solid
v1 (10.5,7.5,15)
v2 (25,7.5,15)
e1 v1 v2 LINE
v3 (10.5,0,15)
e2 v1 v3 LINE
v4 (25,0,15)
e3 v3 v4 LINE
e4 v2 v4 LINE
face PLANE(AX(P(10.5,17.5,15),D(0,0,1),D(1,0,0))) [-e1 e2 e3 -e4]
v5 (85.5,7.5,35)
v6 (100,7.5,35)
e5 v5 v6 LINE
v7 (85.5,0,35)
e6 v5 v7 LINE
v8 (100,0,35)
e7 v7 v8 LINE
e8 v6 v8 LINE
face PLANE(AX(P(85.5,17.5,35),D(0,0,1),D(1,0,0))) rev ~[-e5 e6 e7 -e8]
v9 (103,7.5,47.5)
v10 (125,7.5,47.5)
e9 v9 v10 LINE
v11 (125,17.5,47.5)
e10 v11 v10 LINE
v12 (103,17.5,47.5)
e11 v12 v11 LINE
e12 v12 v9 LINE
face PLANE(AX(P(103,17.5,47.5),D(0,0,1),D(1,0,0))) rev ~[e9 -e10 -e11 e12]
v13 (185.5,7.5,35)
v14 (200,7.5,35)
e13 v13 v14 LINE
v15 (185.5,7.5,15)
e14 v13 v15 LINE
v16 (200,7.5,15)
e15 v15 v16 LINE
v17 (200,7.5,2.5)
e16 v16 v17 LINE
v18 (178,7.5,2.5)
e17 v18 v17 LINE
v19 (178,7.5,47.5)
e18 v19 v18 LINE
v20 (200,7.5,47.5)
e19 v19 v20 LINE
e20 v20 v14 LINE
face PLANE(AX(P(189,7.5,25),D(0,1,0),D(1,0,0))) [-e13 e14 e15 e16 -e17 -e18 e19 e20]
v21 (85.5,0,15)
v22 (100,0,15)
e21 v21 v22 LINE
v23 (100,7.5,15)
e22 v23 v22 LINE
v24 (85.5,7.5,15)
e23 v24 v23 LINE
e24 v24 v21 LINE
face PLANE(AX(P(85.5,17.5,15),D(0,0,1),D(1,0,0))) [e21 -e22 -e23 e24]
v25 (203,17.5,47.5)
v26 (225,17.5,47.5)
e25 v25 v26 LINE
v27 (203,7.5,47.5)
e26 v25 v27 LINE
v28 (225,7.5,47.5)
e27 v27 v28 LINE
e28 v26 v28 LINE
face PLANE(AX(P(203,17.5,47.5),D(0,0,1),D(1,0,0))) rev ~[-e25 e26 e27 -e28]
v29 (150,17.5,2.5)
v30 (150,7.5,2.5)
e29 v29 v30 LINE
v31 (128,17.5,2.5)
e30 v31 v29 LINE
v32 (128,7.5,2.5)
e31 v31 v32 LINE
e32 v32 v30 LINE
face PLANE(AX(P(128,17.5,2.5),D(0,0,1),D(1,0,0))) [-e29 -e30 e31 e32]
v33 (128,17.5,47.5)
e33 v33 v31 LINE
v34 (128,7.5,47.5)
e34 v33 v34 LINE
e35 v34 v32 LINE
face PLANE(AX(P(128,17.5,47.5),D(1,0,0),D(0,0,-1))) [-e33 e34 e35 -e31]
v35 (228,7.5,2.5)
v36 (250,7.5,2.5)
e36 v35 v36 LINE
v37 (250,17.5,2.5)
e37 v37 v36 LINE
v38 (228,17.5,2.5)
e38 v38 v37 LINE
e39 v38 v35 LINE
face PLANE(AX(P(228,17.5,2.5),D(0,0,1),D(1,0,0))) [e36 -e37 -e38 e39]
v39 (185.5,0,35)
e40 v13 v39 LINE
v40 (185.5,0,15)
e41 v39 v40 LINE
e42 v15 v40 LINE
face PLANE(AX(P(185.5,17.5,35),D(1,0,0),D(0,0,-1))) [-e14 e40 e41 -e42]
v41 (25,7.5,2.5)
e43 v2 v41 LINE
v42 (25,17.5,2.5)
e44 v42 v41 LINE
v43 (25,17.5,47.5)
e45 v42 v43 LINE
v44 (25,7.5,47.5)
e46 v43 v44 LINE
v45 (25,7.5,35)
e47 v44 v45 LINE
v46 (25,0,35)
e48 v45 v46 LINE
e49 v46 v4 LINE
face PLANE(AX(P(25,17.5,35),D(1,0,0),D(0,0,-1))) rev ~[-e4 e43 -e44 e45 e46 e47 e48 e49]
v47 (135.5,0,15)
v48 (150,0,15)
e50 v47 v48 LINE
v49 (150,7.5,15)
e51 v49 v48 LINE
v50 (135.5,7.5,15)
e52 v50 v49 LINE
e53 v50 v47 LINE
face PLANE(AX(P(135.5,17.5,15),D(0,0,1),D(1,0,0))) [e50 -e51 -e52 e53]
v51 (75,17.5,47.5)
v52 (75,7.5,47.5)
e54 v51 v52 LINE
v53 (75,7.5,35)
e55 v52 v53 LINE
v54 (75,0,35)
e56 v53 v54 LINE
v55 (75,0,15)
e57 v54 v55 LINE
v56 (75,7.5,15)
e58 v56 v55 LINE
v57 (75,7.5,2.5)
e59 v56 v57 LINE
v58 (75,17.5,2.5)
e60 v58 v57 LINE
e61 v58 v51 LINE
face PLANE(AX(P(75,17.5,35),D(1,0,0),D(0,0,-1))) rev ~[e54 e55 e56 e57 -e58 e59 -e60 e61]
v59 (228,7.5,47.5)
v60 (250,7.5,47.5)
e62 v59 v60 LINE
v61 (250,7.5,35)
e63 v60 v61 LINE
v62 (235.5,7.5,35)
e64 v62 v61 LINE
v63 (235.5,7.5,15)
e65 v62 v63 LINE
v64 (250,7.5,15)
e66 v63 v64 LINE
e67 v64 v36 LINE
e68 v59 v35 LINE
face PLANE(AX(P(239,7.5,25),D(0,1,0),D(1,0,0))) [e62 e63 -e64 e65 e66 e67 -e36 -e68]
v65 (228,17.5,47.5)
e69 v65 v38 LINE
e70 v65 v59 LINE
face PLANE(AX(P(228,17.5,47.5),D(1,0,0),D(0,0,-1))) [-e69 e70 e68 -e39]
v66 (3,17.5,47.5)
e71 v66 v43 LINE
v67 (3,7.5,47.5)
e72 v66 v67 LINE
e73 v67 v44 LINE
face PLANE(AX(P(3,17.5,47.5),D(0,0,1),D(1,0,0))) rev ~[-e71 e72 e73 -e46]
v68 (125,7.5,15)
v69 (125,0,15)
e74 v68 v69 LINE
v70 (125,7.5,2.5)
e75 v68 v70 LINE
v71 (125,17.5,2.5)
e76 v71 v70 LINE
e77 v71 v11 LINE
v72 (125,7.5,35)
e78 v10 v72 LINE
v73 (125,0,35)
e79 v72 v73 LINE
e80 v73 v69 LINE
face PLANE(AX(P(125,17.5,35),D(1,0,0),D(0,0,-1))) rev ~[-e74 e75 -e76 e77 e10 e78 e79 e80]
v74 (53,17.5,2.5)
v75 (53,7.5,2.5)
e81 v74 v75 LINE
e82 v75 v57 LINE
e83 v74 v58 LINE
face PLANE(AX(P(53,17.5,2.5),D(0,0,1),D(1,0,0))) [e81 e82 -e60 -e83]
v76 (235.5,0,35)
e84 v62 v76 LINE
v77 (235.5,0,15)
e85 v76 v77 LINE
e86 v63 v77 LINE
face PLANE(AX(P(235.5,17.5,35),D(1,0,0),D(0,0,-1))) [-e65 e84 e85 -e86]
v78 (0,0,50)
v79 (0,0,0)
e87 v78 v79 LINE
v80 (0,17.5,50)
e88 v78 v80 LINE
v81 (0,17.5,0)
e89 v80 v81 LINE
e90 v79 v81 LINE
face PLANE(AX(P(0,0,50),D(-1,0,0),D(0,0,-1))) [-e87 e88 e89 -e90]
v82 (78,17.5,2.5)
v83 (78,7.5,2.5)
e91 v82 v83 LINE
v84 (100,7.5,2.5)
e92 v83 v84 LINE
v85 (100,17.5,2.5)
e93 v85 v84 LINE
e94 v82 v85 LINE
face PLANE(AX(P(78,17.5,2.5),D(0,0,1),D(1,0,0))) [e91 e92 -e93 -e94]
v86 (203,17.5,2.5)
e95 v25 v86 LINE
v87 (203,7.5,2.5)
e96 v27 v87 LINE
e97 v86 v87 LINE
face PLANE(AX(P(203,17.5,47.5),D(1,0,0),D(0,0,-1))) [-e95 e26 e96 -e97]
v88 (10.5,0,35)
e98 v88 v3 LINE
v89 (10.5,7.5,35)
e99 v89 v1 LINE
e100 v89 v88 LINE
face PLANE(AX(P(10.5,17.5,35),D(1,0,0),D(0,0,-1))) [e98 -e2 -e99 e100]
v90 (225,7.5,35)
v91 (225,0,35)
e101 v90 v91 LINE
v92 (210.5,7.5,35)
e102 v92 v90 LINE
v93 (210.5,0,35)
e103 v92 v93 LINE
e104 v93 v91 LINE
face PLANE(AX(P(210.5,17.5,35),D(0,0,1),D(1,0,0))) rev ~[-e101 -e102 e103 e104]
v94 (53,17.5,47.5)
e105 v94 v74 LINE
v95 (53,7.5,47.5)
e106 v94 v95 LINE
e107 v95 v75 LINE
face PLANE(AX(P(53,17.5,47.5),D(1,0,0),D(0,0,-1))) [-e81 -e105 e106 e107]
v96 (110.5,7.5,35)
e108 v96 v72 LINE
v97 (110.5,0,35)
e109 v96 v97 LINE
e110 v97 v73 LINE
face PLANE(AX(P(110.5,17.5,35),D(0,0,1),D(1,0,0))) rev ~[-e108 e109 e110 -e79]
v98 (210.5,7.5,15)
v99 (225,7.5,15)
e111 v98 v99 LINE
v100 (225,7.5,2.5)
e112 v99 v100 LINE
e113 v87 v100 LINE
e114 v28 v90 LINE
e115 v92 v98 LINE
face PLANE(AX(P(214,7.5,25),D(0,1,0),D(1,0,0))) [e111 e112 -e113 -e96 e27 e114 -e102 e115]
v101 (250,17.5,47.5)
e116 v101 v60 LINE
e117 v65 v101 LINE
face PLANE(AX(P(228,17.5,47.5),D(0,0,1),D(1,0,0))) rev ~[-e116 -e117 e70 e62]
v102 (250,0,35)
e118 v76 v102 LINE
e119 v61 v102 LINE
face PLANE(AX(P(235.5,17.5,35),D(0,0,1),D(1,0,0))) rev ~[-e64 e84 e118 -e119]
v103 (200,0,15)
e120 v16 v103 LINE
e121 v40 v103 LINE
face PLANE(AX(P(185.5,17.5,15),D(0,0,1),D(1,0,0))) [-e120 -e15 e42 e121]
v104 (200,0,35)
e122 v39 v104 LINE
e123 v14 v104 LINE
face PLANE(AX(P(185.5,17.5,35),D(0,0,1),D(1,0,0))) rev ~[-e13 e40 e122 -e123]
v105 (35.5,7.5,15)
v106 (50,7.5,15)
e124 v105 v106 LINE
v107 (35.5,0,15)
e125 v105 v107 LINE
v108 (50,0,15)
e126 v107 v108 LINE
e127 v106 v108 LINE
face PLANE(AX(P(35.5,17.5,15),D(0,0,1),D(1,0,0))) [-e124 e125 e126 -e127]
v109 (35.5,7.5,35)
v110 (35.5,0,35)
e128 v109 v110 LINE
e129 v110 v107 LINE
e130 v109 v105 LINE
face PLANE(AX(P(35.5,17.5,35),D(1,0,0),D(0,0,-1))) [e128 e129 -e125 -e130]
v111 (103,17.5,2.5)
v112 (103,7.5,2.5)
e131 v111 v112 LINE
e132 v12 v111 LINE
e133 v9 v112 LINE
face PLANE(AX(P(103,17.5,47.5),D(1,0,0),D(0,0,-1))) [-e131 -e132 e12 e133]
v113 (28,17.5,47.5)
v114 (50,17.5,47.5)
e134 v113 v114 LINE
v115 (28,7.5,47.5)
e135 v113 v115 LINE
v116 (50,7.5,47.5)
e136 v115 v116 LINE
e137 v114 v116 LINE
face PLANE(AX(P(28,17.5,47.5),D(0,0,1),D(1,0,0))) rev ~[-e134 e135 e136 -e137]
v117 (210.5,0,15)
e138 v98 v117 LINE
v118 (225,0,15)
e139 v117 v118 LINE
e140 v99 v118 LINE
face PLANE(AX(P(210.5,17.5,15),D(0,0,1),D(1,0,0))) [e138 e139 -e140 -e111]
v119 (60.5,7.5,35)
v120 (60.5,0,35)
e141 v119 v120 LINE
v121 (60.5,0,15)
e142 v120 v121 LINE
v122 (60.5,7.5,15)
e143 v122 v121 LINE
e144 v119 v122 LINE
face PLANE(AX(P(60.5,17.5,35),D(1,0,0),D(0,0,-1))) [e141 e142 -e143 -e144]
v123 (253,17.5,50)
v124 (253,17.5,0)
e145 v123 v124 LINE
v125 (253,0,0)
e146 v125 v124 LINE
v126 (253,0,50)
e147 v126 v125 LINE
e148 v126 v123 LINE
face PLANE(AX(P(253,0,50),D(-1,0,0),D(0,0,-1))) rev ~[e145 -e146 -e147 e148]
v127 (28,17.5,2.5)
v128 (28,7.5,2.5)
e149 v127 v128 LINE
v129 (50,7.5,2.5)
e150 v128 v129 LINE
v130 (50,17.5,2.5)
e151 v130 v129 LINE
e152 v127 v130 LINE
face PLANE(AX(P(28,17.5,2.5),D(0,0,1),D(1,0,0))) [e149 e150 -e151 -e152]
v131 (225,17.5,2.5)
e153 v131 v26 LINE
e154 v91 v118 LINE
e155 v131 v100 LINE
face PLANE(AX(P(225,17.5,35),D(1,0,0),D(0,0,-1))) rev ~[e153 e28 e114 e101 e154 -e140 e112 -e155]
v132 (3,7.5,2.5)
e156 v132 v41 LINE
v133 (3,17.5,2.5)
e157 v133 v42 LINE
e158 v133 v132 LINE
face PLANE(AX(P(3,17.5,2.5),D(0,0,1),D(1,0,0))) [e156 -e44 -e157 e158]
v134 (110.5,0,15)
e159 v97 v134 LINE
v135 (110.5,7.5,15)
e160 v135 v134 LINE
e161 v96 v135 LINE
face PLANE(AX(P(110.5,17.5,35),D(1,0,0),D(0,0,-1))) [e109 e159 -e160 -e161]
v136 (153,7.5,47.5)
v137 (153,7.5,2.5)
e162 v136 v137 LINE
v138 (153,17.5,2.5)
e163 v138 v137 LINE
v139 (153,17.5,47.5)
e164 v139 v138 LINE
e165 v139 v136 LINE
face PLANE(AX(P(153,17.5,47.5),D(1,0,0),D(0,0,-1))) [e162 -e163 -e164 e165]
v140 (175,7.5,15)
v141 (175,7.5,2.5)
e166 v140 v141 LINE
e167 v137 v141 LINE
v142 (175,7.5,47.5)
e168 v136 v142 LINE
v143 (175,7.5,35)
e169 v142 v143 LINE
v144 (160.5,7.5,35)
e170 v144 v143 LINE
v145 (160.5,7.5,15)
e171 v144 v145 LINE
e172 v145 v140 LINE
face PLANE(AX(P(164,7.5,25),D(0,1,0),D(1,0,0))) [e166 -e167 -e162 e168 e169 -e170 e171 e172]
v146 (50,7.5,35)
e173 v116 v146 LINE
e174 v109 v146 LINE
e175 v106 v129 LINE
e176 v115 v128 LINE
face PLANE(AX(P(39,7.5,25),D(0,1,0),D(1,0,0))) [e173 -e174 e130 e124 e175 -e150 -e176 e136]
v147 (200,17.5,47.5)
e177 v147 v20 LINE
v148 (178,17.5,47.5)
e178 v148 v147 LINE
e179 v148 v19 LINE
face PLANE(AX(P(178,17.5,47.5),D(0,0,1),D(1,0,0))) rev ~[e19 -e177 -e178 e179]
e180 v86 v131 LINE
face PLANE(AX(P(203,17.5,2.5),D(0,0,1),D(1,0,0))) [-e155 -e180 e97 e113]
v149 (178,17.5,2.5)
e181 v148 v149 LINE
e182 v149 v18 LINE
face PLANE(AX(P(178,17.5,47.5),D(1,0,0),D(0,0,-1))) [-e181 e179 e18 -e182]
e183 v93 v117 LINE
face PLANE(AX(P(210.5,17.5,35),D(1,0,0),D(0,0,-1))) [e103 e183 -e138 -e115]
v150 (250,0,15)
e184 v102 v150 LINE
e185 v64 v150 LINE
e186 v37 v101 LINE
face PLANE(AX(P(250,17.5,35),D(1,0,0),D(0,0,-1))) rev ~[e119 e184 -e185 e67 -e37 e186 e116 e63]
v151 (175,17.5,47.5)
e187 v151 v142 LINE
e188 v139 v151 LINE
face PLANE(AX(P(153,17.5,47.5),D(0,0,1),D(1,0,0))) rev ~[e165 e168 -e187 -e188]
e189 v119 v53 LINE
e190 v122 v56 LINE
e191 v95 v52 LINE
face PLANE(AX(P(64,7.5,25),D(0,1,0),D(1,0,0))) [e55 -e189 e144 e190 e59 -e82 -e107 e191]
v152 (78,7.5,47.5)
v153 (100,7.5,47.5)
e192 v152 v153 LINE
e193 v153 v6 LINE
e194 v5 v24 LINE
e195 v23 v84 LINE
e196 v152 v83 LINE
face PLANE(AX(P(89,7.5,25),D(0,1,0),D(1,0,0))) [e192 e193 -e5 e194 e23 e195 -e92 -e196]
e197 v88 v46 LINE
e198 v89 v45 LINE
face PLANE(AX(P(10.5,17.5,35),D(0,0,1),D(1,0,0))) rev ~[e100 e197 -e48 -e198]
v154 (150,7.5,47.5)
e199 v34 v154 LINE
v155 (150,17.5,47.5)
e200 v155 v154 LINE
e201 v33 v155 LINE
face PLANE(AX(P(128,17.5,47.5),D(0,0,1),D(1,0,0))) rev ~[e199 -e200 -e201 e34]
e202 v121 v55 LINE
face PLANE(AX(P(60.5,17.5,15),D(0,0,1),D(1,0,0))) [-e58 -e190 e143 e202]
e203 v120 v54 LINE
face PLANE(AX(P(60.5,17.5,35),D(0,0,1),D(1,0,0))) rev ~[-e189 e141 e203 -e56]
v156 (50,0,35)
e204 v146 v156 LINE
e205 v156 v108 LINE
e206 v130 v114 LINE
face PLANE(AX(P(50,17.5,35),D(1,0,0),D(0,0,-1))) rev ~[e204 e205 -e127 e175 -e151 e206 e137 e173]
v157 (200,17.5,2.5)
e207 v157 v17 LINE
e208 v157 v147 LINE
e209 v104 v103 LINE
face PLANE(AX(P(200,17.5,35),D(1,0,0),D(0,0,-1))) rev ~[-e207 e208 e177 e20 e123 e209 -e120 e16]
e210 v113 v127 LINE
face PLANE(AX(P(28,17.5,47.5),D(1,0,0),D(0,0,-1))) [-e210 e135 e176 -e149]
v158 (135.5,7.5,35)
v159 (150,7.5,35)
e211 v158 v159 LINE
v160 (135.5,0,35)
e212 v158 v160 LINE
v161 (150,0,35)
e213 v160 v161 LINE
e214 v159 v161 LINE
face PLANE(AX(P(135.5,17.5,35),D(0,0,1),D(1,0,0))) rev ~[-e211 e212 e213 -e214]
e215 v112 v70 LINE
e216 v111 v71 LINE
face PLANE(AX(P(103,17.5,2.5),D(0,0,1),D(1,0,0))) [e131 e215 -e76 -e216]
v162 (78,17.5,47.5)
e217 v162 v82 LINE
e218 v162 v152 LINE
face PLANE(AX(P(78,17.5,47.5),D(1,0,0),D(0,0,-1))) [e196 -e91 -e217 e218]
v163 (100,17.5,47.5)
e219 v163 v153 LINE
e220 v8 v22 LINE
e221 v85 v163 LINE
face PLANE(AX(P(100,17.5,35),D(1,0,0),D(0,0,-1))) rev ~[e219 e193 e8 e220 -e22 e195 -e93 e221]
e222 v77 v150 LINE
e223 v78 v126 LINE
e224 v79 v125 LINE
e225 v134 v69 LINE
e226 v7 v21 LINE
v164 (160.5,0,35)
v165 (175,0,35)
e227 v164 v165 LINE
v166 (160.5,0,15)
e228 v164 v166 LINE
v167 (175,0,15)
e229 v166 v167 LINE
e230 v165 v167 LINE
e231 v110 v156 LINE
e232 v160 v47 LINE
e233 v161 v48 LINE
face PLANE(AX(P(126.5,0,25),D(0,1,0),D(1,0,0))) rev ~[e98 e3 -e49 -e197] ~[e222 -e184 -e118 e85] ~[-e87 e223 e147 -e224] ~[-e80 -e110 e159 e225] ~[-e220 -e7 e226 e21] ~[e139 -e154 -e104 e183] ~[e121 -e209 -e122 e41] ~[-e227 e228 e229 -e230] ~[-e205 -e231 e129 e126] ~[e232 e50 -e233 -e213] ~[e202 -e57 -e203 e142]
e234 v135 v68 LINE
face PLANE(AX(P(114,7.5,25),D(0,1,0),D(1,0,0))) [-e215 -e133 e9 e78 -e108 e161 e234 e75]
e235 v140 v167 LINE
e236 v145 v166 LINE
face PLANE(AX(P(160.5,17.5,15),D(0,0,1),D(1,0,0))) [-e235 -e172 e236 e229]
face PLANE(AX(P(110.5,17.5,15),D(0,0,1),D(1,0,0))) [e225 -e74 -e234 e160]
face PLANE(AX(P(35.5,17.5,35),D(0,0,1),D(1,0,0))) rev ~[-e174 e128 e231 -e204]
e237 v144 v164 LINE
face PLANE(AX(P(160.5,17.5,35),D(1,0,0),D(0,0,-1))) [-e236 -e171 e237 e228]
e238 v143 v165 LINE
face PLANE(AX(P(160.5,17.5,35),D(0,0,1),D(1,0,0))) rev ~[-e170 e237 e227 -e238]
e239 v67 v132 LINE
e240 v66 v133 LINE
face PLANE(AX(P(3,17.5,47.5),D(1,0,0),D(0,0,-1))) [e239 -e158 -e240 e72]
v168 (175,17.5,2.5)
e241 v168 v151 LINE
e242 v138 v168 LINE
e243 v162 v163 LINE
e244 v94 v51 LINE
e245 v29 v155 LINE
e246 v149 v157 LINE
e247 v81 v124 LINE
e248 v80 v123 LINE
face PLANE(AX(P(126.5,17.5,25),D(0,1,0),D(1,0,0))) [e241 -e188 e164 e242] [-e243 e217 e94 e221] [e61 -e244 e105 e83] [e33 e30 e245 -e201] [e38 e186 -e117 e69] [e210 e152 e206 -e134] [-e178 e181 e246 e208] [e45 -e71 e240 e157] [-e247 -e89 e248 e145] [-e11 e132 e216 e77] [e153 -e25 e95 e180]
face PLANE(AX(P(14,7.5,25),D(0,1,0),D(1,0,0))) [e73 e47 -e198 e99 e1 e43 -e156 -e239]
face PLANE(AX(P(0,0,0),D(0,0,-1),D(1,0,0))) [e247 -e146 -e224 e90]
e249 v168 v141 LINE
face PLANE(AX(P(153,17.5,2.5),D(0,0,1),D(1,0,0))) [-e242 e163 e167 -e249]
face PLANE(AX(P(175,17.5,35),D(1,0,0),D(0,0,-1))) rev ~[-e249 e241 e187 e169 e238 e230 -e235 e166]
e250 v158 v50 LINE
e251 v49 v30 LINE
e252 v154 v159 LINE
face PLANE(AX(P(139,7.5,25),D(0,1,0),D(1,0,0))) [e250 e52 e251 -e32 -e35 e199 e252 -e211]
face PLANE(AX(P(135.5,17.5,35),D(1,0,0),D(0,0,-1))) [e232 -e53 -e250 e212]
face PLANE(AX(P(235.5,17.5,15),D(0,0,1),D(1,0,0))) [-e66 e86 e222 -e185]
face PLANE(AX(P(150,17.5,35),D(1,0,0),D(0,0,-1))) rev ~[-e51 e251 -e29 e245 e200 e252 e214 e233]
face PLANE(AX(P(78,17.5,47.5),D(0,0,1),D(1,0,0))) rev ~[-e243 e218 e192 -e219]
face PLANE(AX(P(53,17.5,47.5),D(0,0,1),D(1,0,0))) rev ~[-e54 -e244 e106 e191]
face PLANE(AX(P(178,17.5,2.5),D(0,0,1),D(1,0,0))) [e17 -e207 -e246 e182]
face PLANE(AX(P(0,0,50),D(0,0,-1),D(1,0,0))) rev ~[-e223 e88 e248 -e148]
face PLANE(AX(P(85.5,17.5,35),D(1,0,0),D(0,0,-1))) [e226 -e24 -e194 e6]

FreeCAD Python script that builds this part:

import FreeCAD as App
import Part
import Sketcher

V = App.Vector
Q = App.Units.Quantity

doc = App.newDocument("Part")
body = doc.addObject("PartDesign::Body", "Body")

sketch1 = body.newObject("Sketcher::SketchObject", "Sketch")
sketch1.AttachmentSupport = (doc.getObject("XZ_Plane"), [""])
sketch1.MapMode = "FlatFace"
sketch1.addGeometry([
    Part.LineSegment(V(0, 0, 0), V(0, 50, 0)),
    Part.LineSegment(V(0, 50, 0), V(253, 50, 0)),
    Part.LineSegment(V(253, 50, 0), V(253, 0, 0)),
    Part.LineSegment(V(253, 0, 0), V(0, 0, 0)),
], False)
sketch1.addConstraint([
    Sketcher.Constraint("Coincident", 0, 2, 1, 1),
    Sketcher.Constraint("Coincident", 1, 2, 2, 1),
    Sketcher.Constraint("Coincident", 2, 2, 3, 1),
    Sketcher.Constraint("Coincident", 3, 2, 0, 1),
    Sketcher.Constraint("Vertical", 0),
    Sketcher.Constraint("Horizontal", 1),
    Sketcher.Constraint("Vertical", 2),
    Sketcher.Constraint("Horizontal", 3),
    Sketcher.Constraint("Coincident", 3, 2, -1, 1),
    Sketcher.Constraint("DistanceX", 1, 1, 1, 2, Q("253 mm")),
    Sketcher.Constraint("DistanceY", 0, 1, 0, 2, Q("50 mm")),
])
pad1 = body.newObject("PartDesign::Pad", "Pad")
pad1.Profile = sketch1
pad1.Length = 17.5
pad1.Reversed = True

sketch2 = body.newObject("Sketcher::SketchObject", "Sketch001")
sketch2.AttachmentSupport = (doc.getObject("XZ_Plane"), [""])
sketch2.MapMode = "FlatFace"
sketch2.AttachmentOffset = App.Placement(V(0, 0, -17.5), App.Rotation())
sketch2.addGeometry([
    Part.LineSegment(V(3, 2.5, 0), V(3, 47.5, 0)),
    Part.LineSegment(V(3, 47.5, 0), V(25, 47.5, 0)),
    Part.LineSegment(V(25, 47.5, 0), V(25, 2.5, 0)),
    Part.LineSegment(V(25, 2.5, 0), V(3, 2.5, 0)),
], False)
sketch2.addConstraint([
    Sketcher.Constraint("Coincident", 0, 2, 1, 1),
    Sketcher.Constraint("Coincident", 1, 2, 2, 1),
    Sketcher.Constraint("Coincident", 2, 2, 3, 1),
    Sketcher.Constraint("Coincident", 3, 2, 0, 1),
    Sketcher.Constraint("Vertical", 0),
    Sketcher.Constraint("Horizontal", 1),
    Sketcher.Constraint("Vertical", 2),
    Sketcher.Constraint("Horizontal", 3),
    Sketcher.Constraint("DistanceX", 1, 1, 1, 2, Q("22 mm")),
    Sketcher.Constraint("DistanceY", 0, 1, 0, 2, Q("45 mm")),
    Sketcher.Constraint("DistanceX", -1, 1, 0, 2, Q("3 mm")),
    Sketcher.Constraint("DistanceY", -1, 1, 0, 2, Q("47.5 mm")),
])
pocket1 = body.newObject("PartDesign::Pocket", "Pocket")
pocket1.Profile = sketch2
pocket1.Length = 10
pocket1.Reversed = True

sketch3 = body.newObject("Sketcher::SketchObject", "Sketch002")
sketch3.AttachmentSupport = (doc.getObject("XZ_Plane"), [""])
sketch3.MapMode = "FlatFace"
sketch3.AttachmentOffset = App.Placement(V(0, 0, -17.5), App.Rotation())
sketch3.addGeometry([
    Part.LineSegment(V(10.5, 15, 0), V(10.5, 35, 0)),
    Part.LineSegment(V(10.5, 35, 0), V(25, 35, 0)),
    Part.LineSegment(V(25, 35, 0), V(25, 15, 0)),
    Part.LineSegment(V(25, 15, 0), V(10.5, 15, 0)),
], False)
sketch3.addConstraint([
    Sketcher.Constraint("Coincident", 0, 2, 1, 1),
    Sketcher.Constraint("Coincident", 1, 2, 2, 1),
    Sketcher.Constraint("Coincident", 2, 2, 3, 1),
    Sketcher.Constraint("Coincident", 3, 2, 0, 1),
    Sketcher.Constraint("Vertical", 0),
    Sketcher.Constraint("Horizontal", 1),
    Sketcher.Constraint("Vertical", 2),
    Sketcher.Constraint("Horizontal", 3),
    Sketcher.Constraint("DistanceY", 0, 1, 0, 2, Q("20 mm")),
    Sketcher.Constraint("DistanceX", 1, 1, 1, 2, Q("14.5 mm")),
    Sketcher.Constraint("DistanceY", -1, 1, 0, 2, Q("35 mm")),
    Sketcher.Constraint("DistanceX", -1, 1, 1, 2, Q("25 mm")),
])
pocket2 = body.newObject("PartDesign::Pocket", "Pocket001")
pocket2.Profile = sketch3
pocket2.Length = 17.5
pocket2.Reversed = True
doc.recompute()

linearpattern = body.newObject("PartDesign::LinearPattern", "LinearPattern")
linearpattern.Originals = [pocket1, pocket2]
linearpattern.Direction = (doc.getObject("X_Axis"), [""])
linearpattern.Mode = "offset"
linearpattern.Offset = 25
linearpattern.Occurrences = 10
body.Tip = linearpattern

doc.recompute()
